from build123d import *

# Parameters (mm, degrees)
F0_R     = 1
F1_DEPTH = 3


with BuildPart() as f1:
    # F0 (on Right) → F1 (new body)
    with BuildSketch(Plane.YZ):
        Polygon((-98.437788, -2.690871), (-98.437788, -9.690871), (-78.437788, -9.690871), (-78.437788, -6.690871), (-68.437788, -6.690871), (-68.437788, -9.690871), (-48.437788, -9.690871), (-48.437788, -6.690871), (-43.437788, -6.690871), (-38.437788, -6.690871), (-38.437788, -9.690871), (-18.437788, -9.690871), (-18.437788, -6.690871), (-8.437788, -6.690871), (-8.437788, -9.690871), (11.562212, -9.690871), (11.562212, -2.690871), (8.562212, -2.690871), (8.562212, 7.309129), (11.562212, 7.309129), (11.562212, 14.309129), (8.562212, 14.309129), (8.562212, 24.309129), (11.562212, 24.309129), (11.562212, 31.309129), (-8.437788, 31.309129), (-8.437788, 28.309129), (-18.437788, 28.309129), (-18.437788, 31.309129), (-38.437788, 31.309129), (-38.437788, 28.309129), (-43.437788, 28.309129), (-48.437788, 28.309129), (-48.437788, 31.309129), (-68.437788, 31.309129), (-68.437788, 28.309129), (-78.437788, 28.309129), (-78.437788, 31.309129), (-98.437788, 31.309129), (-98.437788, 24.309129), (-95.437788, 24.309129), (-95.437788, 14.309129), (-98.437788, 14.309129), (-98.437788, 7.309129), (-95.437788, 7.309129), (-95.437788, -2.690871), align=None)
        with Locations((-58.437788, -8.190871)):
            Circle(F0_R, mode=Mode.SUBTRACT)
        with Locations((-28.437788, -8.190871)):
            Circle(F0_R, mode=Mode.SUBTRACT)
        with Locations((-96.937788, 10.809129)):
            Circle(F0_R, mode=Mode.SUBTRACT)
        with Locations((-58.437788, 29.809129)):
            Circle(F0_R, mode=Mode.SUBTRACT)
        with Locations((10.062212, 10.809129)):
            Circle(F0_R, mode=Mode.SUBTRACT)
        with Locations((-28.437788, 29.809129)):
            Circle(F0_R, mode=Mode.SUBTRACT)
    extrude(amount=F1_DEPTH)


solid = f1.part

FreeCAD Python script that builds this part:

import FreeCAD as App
import Part
import Sketcher
Q = App.Units.Quantity


def add_polygon(sketch, points):
    """Adds a closed chain of lines whose ends are joined by coincident constraints."""
    first, n = sketch.GeometryCount, len(points)
    for a, b in zip(points, points[1:] + points[:1]):
        sketch.addGeometry(Part.LineSegment(App.Vector(*a, 0), App.Vector(*b, 0)), False)
    for i in range(n):
        sketch.addConstraint(Sketcher.Constraint("Coincident", first + i, 2, first + (i + 1) % n, 1))

doc = App.newDocument("Part")
body = doc.addObject("PartDesign::Body", "Body")

# Sketch on YZ plane
sketch1 = body.newObject("Sketcher::SketchObject", "Sketch")
sketch1.AttachmentSupport = (doc.getObject("YZ_Plane"), [""])
sketch1.MapMode = "FlatFace"
add_polygon(sketch1, [(-98.4, -2.7), (-98.4, -9.7), (-78.4, -9.7), (-78.4, -6.7), (-68.4, -6.7), (-68.4, -9.7), (-48.4, -9.7), (-48.4, -6.7), (-38.4, -6.7), (-38.4, -9.7), (-18.4, -9.7), (-18.4, -6.7), (-8.4, -6.7), (-8.4, -9.7), (11.6, -9.7), (11.6, -2.7), (8.6, -2.7), (8.6, 7.3), (11.6, 7.3), (11.6, 14.3), (8.6, 14.3), (8.6, 24.3), (11.6, 24.3), (11.6, 31.3), (-8.4, 31.3), (-8.4, 28.3), (-18.4, 28.3), (-18.4, 31.3), (-38.4, 31.3), (-38.4, 28.3), (-48.4, 28.3), (-48.4, 31.3), (-68.4, 31.3), (-68.4, 28.3), (-78.4, 28.3), (-78.4, 31.3), (-98.4, 31.3), (-98.4, 24.3), (-95.4, 24.3), (-95.4, 14.3), (-98.4, 14.3), (-98.4, 7.3), (-95.4, 7.3), (-95.4, -2.7)])  # lines 0-43
sketch1.addGeometry(Part.Circle(App.Vector(-58.4, -8.2, 0), App.Vector(0, 0, 1), 1), False)  # 44
sketch1.addGeometry(Part.Circle(App.Vector(-28.4, -8.2, 0), App.Vector(0, 0, 1), 1), False)  # 45
sketch1.addGeometry(Part.Circle(App.Vector(-96.9, 10.8, 0), App.Vector(0, 0, 1), 1), False)  # 46
sketch1.addGeometry(Part.Circle(App.Vector(-58.4, 29.8, 0), App.Vector(0, 0, 1), 1), False)  # 47
sketch1.addGeometry(Part.Circle(App.Vector(10.1, 10.8, 0), App.Vector(0, 0, 1), 1), False)  # 48
sketch1.addGeometry(Part.Circle(App.Vector(-28.4, 29.8, 0), App.Vector(0, 0, 1), 1), False)  # 49
sketch1.addConstraint([
    Sketcher.Constraint("Vertical", 0),
    Sketcher.Constraint("Horizontal", 1),
    Sketcher.Constraint("Vertical", 2),
    Sketcher.Constraint("Horizontal", 3),
    Sketcher.Constraint("Vertical", 4),
    Sketcher.Constraint("Horizontal", 5),
    Sketcher.Constraint("Vertical", 6),
    Sketcher.Constraint("Horizontal", 7),
    Sketcher.Constraint("Vertical", 8),
    Sketcher.Constraint("Horizontal", 9),
    Sketcher.Constraint("Vertical", 10),
    Sketcher.Constraint("Horizontal", 11),
    Sketcher.Constraint("Vertical", 12),
    Sketcher.Constraint("Horizontal", 13),
    Sketcher.Constraint("Vertical", 14),
    Sketcher.Constraint("Horizontal", 15),
    Sketcher.Constraint("Vertical", 16),
    Sketcher.Constraint("Horizontal", 17),
    Sketcher.Constraint("Vertical", 18),
    Sketcher.Constraint("Horizontal", 19),
    Sketcher.Constraint("Vertical", 20),
    Sketcher.Constraint("Horizontal", 21),
    Sketcher.Constraint("Vertical", 22),
    Sketcher.Constraint("Horizontal", 23),
    Sketcher.Constraint("Vertical", 24),
    Sketcher.Constraint("Horizontal", 25),
    Sketcher.Constraint("Vertical", 26),
    Sketcher.Constraint("Horizontal", 27),
    Sketcher.Constraint("Vertical", 28),
    Sketcher.Constraint("Horizontal", 29),
    Sketcher.Constraint("Vertical", 30),
    Sketcher.Constraint("Horizontal", 31),
    Sketcher.Constraint("Vertical", 32),
    Sketcher.Constraint("Horizontal", 33),
    Sketcher.Constraint("Vertical", 34),
    Sketcher.Constraint("Horizontal", 35),
    Sketcher.Constraint("Vertical", 36),
    Sketcher.Constraint("Horizontal", 37),
    Sketcher.Constraint("Vertical", 38),
    Sketcher.Constraint("Horizontal", 39),
    Sketcher.Constraint("Vertical", 40),
    Sketcher.Constraint("Horizontal", 41),
    Sketcher.Constraint("Vertical", 42),
    Sketcher.Constraint("Horizontal", 43),
    Sketcher.Constraint("Equal", 44, 45),
    Sketcher.Constraint("Equal", 45, 46),
    Sketcher.Constraint("Equal", 46, 47),
    Sketcher.Constraint("Equal", 47, 48),
    Sketcher.Constraint("Equal", 48, 49),
    Sketcher.Constraint("Horizontal", 44, 3, 45, 3),
    Sketcher.Constraint("Horizontal", 46, 3, 48, 3),
    Sketcher.Constraint("Horizontal", 47, 3, 49, 3),
    Sketcher.Constraint("Horizontal", 1, 2, 4, 2),
    Sketcher.Constraint("Horizontal", 3, 2, 6, 2),
    Sketcher.Constraint("Horizontal", 5, 2, 8, 2),
    Sketcher.Constraint("Horizontal", 7, 2, 10, 2),
    Sketcher.Constraint("Horizontal", 9, 2, 12, 2),
    Sketcher.Constraint("Horizontal", 23, 2, 26, 2),
    Sketcher.Constraint("Horizontal", 25, 2, 28, 2),
    Sketcher.Constraint("Horizontal", 27, 2, 30, 2),
    Sketcher.Constraint("Horizontal", 29, 2, 32, 2),
    Sketcher.Constraint("Horizontal", 31, 2, 34, 2),
    Sketcher.Constraint("Horizontal", 21, 2, 36, 2),
    Sketcher.Constraint("Horizontal", 19, 2, 38, 2),
    Sketcher.Constraint("Horizontal", 17, 2, 40, 2),
    Sketcher.Constraint("Horizontal", 15, 2, 42, 2),
    Sketcher.Constraint("Vertical", 44, 3, 47, 3),
    Sketcher.Constraint("Vertical", 45, 3, 49, 3),
    Sketcher.Constraint("Vertical", 14, 2, 17, 2),
    Sketcher.Constraint("Vertical", 16, 2, 19, 2),
    Sketcher.Constraint("Vertical", 18, 2, 21, 2),
    Sketcher.Constraint("Vertical", 12, 2, 23, 2),
    Sketcher.Constraint("Vertical", 10, 2, 25, 2),
    Sketcher.Constraint("Vertical", 8, 2, 27, 2),
    Sketcher.Constraint("Vertical", 6, 2, 29, 2),
    Sketcher.Constraint("Vertical", 4, 2, 31, 2),
    Sketcher.Constraint("Vertical", 2, 2, 33, 2),
    Sketcher.Constraint("Vertical", 0, 2, 35, 2),
    Sketcher.Constraint("Vertical", 36, 2, 39, 2),
    Sketcher.Constraint("Vertical", 38, 2, 41, 2),
    Sketcher.Constraint("Equal", 1, 5),
    Sketcher.Constraint("Equal", 3, 7),
    Sketcher.Constraint("Equal", 5, 9),
    Sketcher.Constraint("Equal", 7, 11),
    Sketcher.Constraint("Equal", 9, 13),
    Sketcher.Constraint("Equal", 21, 37),
    Sketcher.Constraint("Equal", 43, 2),
    Sketcher.Constraint("Equal", 33, 16),
    Sketcher.Constraint("Equal", 14, 18),
    Sketcher.Constraint("Equal", 16, 20),
    Sketcher.Constraint("Equal", 18, 22),
    Sketcher.Constraint("Equal", 12, 24),
    Sketcher.Constraint("Diameter", 44, Q("2 mm")),
    Sketcher.Constraint("DistanceX", 1, 1, 1, 2, Q("20 mm")),
    Sketcher.Constraint("DistanceX", 3, 1, 3, 2, Q("10 mm")),
    Sketcher.Constraint("DistanceX", 15, 2, 15, 1, Q("3 mm")),
    Sketcher.Constraint("DistanceY", 0, 2, 0, 1, Q("7 mm")),
    Sketcher.Constraint("DistanceX", 44, 3, 45, 3, Q("30 mm")),
    Sketcher.Constraint("DistanceY", 44, 3, 46, 3, Q("19 mm")),
    Sketcher.Constraint("DistanceY", 44, 3, 47, 3, Q("38 mm")),
    Sketcher.Constraint("DistanceX", 46, 3, 48, 3, Q("107 mm")),
    Sketcher.Constraint("DistanceX", 0, 2, 44, 3, Q("40 mm")),
    Sketcher.Constraint("DistanceX", 46, 3, 44, 3, Q("38.5 mm")),
    Sketcher.Constraint("DistanceY", 0, 2, 46, 3, Q("20.5 mm")),
    Sketcher.Constraint("DistanceY", 44, 3, -1, 1, Q("8.190871 mm")),
    Sketcher.Constraint("DistanceX", 45, 3, -1, 1, Q("28.437788 mm")),
])
pad1 = body.newObject("PartDesign::Pad", "Pad")
pad1.Profile = sketch1
pad1.Length = 3

doc.recompute()
